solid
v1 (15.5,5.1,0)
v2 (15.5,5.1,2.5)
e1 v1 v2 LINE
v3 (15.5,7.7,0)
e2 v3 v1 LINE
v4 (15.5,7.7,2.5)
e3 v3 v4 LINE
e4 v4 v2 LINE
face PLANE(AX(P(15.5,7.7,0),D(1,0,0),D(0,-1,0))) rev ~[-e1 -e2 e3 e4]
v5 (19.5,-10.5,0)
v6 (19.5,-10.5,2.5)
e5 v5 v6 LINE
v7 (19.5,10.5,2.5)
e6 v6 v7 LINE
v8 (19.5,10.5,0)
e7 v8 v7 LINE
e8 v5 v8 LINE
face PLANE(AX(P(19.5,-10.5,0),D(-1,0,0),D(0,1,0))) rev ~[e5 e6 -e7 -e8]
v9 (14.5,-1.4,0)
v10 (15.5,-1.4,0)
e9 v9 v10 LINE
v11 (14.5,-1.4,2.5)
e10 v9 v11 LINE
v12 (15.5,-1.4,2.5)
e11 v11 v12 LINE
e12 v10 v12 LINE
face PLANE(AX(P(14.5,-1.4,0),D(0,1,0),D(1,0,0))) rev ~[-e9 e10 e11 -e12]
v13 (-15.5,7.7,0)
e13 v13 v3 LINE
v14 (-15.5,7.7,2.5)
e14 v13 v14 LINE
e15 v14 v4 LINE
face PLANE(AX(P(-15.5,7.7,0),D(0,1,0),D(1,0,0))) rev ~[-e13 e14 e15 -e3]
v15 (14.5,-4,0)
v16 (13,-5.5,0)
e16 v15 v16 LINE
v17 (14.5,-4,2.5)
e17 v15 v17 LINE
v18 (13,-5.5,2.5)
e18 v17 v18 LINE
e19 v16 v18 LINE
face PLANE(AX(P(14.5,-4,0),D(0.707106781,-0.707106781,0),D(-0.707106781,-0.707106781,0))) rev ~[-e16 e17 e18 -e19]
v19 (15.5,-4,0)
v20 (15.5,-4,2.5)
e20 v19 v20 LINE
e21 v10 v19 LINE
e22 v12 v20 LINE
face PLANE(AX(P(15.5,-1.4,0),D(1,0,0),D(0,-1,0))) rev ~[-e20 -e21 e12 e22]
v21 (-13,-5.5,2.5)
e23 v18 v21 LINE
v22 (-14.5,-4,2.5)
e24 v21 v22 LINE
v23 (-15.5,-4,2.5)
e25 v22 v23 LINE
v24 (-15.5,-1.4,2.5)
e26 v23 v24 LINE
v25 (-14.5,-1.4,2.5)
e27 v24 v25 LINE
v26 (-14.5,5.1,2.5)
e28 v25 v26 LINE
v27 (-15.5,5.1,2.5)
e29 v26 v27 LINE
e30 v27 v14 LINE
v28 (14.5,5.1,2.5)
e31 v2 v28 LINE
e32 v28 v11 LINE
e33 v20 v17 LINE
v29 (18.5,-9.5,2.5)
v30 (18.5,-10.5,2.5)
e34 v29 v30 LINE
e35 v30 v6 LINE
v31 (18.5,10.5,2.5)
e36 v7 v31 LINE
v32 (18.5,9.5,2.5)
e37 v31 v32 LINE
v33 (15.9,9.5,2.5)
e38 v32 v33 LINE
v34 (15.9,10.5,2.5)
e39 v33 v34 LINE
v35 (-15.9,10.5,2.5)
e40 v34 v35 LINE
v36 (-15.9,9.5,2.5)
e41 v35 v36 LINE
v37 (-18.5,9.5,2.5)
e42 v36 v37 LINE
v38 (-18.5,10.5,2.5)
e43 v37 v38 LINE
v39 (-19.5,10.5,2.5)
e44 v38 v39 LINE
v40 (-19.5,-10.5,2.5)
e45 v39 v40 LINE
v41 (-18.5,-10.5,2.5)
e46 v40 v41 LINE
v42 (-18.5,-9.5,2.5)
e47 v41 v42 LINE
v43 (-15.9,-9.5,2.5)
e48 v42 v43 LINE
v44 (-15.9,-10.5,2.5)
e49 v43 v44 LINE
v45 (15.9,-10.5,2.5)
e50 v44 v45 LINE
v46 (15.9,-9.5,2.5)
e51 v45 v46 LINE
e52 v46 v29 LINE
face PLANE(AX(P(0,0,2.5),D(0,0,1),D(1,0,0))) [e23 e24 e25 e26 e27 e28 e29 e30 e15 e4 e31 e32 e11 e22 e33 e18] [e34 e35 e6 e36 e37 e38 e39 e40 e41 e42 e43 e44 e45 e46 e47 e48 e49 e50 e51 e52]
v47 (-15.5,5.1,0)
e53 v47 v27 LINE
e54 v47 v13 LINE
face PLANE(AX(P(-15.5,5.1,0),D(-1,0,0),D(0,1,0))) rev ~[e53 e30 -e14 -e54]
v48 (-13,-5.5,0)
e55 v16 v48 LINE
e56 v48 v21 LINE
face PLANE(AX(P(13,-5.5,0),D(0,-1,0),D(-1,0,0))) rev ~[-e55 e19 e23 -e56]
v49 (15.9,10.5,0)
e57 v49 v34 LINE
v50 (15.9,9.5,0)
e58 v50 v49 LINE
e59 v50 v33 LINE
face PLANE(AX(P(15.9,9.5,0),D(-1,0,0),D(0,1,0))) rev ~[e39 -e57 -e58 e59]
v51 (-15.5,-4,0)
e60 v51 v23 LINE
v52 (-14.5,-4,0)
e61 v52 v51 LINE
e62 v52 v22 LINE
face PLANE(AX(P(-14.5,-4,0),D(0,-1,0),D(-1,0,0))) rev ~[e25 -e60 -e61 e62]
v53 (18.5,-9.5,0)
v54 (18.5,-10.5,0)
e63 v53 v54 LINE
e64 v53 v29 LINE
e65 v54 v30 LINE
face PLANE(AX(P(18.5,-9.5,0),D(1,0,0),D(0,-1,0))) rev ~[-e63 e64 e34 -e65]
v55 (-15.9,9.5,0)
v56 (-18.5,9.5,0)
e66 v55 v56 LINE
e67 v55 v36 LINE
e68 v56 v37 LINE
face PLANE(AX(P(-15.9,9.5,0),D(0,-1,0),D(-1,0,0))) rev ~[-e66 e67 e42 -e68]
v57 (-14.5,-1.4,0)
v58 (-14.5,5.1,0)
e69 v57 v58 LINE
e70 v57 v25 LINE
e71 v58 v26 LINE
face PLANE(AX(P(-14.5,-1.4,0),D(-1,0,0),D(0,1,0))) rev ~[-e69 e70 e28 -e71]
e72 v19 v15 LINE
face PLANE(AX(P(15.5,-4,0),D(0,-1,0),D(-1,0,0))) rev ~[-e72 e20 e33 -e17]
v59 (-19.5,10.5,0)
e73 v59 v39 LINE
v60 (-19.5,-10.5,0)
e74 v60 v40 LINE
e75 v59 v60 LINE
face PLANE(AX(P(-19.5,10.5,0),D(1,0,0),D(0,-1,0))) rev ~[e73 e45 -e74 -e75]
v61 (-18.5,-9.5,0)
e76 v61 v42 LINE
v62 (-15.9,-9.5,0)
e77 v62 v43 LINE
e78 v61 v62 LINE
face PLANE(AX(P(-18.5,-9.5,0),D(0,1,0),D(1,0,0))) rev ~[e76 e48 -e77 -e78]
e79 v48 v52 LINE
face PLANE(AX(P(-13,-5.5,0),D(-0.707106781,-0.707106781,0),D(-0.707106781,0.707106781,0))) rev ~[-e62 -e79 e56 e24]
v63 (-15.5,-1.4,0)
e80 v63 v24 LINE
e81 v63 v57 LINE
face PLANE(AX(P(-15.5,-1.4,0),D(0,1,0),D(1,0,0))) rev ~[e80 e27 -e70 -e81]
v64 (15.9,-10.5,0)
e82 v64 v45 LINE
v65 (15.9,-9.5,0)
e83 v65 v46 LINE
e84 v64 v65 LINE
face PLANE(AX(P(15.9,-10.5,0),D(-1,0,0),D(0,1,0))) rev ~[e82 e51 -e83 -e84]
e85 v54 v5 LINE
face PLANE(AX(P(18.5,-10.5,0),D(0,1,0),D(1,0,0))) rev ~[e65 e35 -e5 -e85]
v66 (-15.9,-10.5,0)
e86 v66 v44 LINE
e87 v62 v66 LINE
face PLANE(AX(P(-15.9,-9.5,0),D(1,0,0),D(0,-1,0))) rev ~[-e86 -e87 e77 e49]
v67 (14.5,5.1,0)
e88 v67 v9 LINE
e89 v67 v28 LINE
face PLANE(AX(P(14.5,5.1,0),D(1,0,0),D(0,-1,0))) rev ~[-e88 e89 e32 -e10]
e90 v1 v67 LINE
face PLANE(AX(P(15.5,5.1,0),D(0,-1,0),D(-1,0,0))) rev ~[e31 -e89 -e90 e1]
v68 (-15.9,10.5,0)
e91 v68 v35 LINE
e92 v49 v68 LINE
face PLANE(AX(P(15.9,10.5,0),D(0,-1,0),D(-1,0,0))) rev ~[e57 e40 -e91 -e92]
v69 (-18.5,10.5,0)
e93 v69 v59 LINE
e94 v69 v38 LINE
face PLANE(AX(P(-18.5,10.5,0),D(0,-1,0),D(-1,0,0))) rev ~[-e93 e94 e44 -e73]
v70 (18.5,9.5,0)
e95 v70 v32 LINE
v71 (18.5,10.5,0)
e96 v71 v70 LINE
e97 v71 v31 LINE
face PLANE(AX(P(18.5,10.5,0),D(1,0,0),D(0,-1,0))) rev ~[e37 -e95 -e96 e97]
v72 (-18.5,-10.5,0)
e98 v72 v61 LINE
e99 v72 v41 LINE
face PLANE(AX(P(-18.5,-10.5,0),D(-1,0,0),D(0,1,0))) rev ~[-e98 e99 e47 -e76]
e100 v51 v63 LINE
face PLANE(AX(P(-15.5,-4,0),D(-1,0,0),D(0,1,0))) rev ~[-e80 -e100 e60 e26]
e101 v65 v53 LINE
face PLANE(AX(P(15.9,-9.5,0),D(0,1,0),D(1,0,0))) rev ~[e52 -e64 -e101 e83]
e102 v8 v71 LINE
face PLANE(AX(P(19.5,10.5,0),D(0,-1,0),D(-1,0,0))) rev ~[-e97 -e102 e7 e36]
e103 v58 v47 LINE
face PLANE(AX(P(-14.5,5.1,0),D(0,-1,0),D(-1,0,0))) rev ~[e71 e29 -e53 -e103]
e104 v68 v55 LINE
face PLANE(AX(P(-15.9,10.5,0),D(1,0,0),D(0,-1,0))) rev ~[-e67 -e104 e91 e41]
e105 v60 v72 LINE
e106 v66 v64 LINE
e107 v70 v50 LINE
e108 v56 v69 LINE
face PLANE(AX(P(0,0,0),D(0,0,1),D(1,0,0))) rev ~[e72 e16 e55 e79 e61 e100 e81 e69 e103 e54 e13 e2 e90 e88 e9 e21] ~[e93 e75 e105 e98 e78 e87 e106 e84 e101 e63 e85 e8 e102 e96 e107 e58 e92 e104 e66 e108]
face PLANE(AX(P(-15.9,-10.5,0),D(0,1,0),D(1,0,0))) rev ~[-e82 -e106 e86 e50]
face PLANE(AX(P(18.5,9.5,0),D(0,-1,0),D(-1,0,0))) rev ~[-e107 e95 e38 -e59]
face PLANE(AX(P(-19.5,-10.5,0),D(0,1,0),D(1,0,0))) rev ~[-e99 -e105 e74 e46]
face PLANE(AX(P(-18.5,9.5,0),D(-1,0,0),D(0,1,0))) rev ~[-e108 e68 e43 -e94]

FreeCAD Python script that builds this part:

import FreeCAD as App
import Part
import Sketcher
from FreeCAD import Vector
Q = App.Units.Quantity

doc = App.newDocument("Part")
body = doc.addObject("PartDesign::Body", "Body")

# Sketch on XY plane
sketch1 = body.newObject("Sketcher::SketchObject", "Sketch")
sketch1.AttachmentSupport = (doc.getObject("XY_Plane"), [""])
sketch1.MapMode = "FlatFace"
sketch1.addGeometry([
    Part.LineSegment(Vector(18.5, -10.5, 0), Vector(19.5, -10.5, 0)),  # 0
    Part.LineSegment(Vector(19.5, -10.5, 0), Vector(19.5, 10.5, 0)),  # 1
    Part.LineSegment(Vector(19.5, 10.5, 0), Vector(18.5, 10.5, 0)),  # 2
    Part.LineSegment(Vector(18.5, 10.5, 0), Vector(18.5, 9.5, 0)),  # 3
    Part.LineSegment(Vector(18.5, 9.5, 0), Vector(15.9, 9.5, 0)),  # 4
    Part.LineSegment(Vector(15.9, 9.5, 0), Vector(15.9, 10.5, 0)),  # 5
    Part.LineSegment(Vector(15.9, 10.5, 0), Vector(-15.9, 10.5, 0)),  # 6
    Part.LineSegment(Vector(-15.9, 10.5, 0), Vector(-15.9, 9.5, 0)),  # 7
    Part.LineSegment(Vector(-15.9, 9.5, 0), Vector(-18.5, 9.5, 0)),  # 8
    Part.LineSegment(Vector(-18.5, 9.5, 0), Vector(-18.5, 10.5, 0)),  # 9
    Part.LineSegment(Vector(-18.5, 10.5, 0), Vector(-19.5, 10.5, 0)),  # 10
    Part.LineSegment(Vector(-19.5, 10.5, 0), Vector(-19.5, -10.5, 0)),  # 11
    Part.LineSegment(Vector(-19.5, -10.5, 0), Vector(-18.5, -10.5, 0)),  # 12
    Part.LineSegment(Vector(-18.5, -10.5, 0), Vector(-18.5, -9.5, 0)),  # 13
    Part.LineSegment(Vector(-18.5, -9.5, 0), Vector(-15.9, -9.5, 0)),  # 14
    Part.LineSegment(Vector(-15.9, -9.5, 0), Vector(-15.9, -10.5, 0)),  # 15
    Part.LineSegment(Vector(-15.9, -10.5, 0), Vector(15.9, -10.5, 0)),  # 16
    Part.LineSegment(Vector(15.9, -10.5, 0), Vector(15.9, -9.5, 0)),  # 17
    Part.LineSegment(Vector(15.9, -9.5, 0), Vector(18.5, -9.5, 0)),  # 18
    Part.LineSegment(Vector(18.5, -9.5, 0), Vector(18.5, -10.5, 0)),  # 19
    Part.LineSegment(Vector(-15.5, -1.4, 0), Vector(-14.5, -1.4, 0)),  # 20
    Part.LineSegment(Vector(-14.5, -1.4, 0), Vector(-14.5, 5.1, 0)),  # 21
    Part.LineSegment(Vector(-14.5, 5.1, 0), Vector(-15.5, 5.1, 0)),  # 22
    Part.LineSegment(Vector(-15.5, 5.1, 0), Vector(-15.5, 7.7, 0)),  # 23
    Part.LineSegment(Vector(-15.5, 7.7, 0), Vector(15.5, 7.7, 0)),  # 24
    Part.LineSegment(Vector(15.5, 7.7, 0), Vector(15.5, 5.1, 0)),  # 25
    Part.LineSegment(Vector(15.5, 5.1, 0), Vector(14.5, 5.1, 0)),  # 26
    Part.LineSegment(Vector(14.5, 5.1, 0), Vector(14.5, -1.4, 0)),  # 27
    Part.LineSegment(Vector(14.5, -1.4, 0), Vector(15.5, -1.4, 0)),  # 28
    Part.LineSegment(Vector(15.5, -1.4, 0), Vector(15.5, -4, 0)),  # 29
    Part.LineSegment(Vector(15.5, -4, 0), Vector(14.5, -4, 0)),  # 30
    Part.LineSegment(Vector(14.5, -4, 0), Vector(13, -5.5, 0)),  # 31
    Part.LineSegment(Vector(13, -5.5, 0), Vector(-13, -5.5, 0)),  # 32
    Part.LineSegment(Vector(-13, -5.5, 0), Vector(-14.5, -4, 0)),  # 33
    Part.LineSegment(Vector(-14.5, -4, 0), Vector(-15.5, -4, 0)),  # 34
    Part.LineSegment(Vector(-15.5, -4, 0), Vector(-15.5, -1.4, 0)),  # 35
], False)
sketch1.addConstraint([
    Sketcher.Constraint("Coincident", 0, 2, 1, 1),
    Sketcher.Constraint("Coincident", 1, 2, 2, 1),
    Sketcher.Constraint("Coincident", 2, 2, 3, 1),
    Sketcher.Constraint("Coincident", 3, 2, 4, 1),
    Sketcher.Constraint("Coincident", 4, 2, 5, 1),
    Sketcher.Constraint("Coincident", 5, 2, 6, 1),
    Sketcher.Constraint("Coincident", 6, 2, 7, 1),
    Sketcher.Constraint("Coincident", 7, 2, 8, 1),
    Sketcher.Constraint("Coincident", 8, 2, 9, 1),
    Sketcher.Constraint("Coincident", 9, 2, 10, 1),
    Sketcher.Constraint("Coincident", 10, 2, 11, 1),
    Sketcher.Constraint("Coincident", 11, 2, 12, 1),
    Sketcher.Constraint("Coincident", 12, 2, 13, 1),
    Sketcher.Constraint("Coincident", 13, 2, 14, 1),
    Sketcher.Constraint("Coincident", 14, 2, 15, 1),
    Sketcher.Constraint("Coincident", 15, 2, 16, 1),
    Sketcher.Constraint("Coincident", 16, 2, 17, 1),
    Sketcher.Constraint("Coincident", 17, 2, 18, 1),
    Sketcher.Constraint("Coincident", 18, 2, 19, 1),
    Sketcher.Constraint("Coincident", 19, 2, 0, 1),
    Sketcher.Constraint("Coincident", 20, 2, 21, 1),
    Sketcher.Constraint("Coincident", 21, 2, 22, 1),
    Sketcher.Constraint("Coincident", 22, 2, 23, 1),
    Sketcher.Constraint("Coincident", 23, 2, 24, 1),
    Sketcher.Constraint("Coincident", 24, 2, 25, 1),
    Sketcher.Constraint("Coincident", 25, 2, 26, 1),
    Sketcher.Constraint("Coincident", 26, 2, 27, 1),
    Sketcher.Constraint("Coincident", 27, 2, 28, 1),
    Sketcher.Constraint("Coincident", 28, 2, 29, 1),
    Sketcher.Constraint("Coincident", 29, 2, 30, 1),
    Sketcher.Constraint("Coincident", 30, 2, 31, 1),
    Sketcher.Constraint("Coincident", 31, 2, 32, 1),
    Sketcher.Constraint("Coincident", 32, 2, 33, 1),
    Sketcher.Constraint("Coincident", 33, 2, 34, 1),
    Sketcher.Constraint("Coincident", 34, 2, 35, 1),
    Sketcher.Constraint("Coincident", 35, 2, 20, 1),
    Sketcher.Constraint("Horizontal", 0),
    Sketcher.Constraint("Vertical", 1),
    Sketcher.Constraint("Horizontal", 2),
    Sketcher.Constraint("Vertical", 3),
    Sketcher.Constraint("Horizontal", 4),
    Sketcher.Constraint("Vertical", 5),
    Sketcher.Constraint("Horizontal", 6),
    Sketcher.Constraint("Vertical", 7),
    Sketcher.Constraint("Horizontal", 8),
    Sketcher.Constraint("Vertical", 9),
    Sketcher.Constraint("Horizontal", 10),
    Sketcher.Constraint("Vertical", 11),
    Sketcher.Constraint("Horizontal", 12),
    Sketcher.Constraint("Vertical", 13),
    Sketcher.Constraint("Horizontal", 14),
    Sketcher.Constraint("Vertical", 15),
    Sketcher.Constraint("Horizontal", 16),
    Sketcher.Constraint("Vertical", 17),
    Sketcher.Constraint("Horizontal", 18),
    Sketcher.Constraint("Vertical", 19),
    Sketcher.Constraint("Horizontal", 20),
    Sketcher.Constraint("Vertical", 21),
    Sketcher.Constraint("Horizontal", 22),
    Sketcher.Constraint("Vertical", 23),
    Sketcher.Constraint("Horizontal", 24),
    Sketcher.Constraint("Vertical", 25),
    Sketcher.Constraint("Horizontal", 26),
    Sketcher.Constraint("Vertical", 27),
    Sketcher.Constraint("Horizontal", 28),
    Sketcher.Constraint("Vertical", 29),
    Sketcher.Constraint("Horizontal", 30),
    Sketcher.Constraint("Horizontal", 32),
    Sketcher.Constraint("Horizontal", 34),
    Sketcher.Constraint("Vertical", 35),
    Sketcher.Constraint("Symmetric", 0, 2, 10, 2, -1, 1),
    Sketcher.Constraint("Symmetric", 2, 2, 12, 2, -1, 1),
    Sketcher.Constraint("Symmetric", 4, 2, 14, 2, -1, 1),
    Sketcher.Constraint("Symmetric", 6, 2, 16, 2, -1, 1),
    Sketcher.Constraint("Symmetric", 8, 2, 18, 2, -1, 1),
    Sketcher.Constraint("Symmetric", 4, 2, 7, 2, -2),
    Sketcher.Constraint("Symmetric", 2, 2, 9, 2, -2),
    Sketcher.Constraint("Symmetric", 22, 2, 25, 2, -2),
    Sketcher.Constraint("Symmetric", 20, 2, 27, 2, -2),
    Sketcher.Constraint("Symmetric", 30, 2, 33, 2, -2),
    Sketcher.Constraint("Perpendicular", 31, 33),
    Sketcher.Constraint("Horizontal", 2, 2, 5, 2),
    Sketcher.Constraint("Vertical", 25, 2, 28, 2),
    Sketcher.Constraint("Vertical", 27, 2, 30, 2),
    Sketcher.Constraint("Vertical", 23, 2, 34, 2),
    Sketcher.Constraint("Equal", 12, 20),
    Sketcher.Constraint("Equal", 34, 3),
    Sketcher.Constraint("Equal", 18, 23),
    Sketcher.Constraint("Equal", 25, 29),
    Sketcher.Constraint("Equal", 31, 33),
    Sketcher.Constraint("DistanceX", 0, 1, 0, 2, Q("1 mm")),
    Sketcher.Constraint("DistanceX", 24, 1, 24, 2, Q("31 mm")),
    Sketcher.Constraint("DistanceX", 32, 2, 32, 1, Q("26 mm")),
    Sketcher.Constraint("DistanceY", 1, 1, 1, 2, Q("21 mm")),
    Sketcher.Constraint("DistanceX", 4, 2, 4, 1, Q("2.6 mm")),
    Sketcher.Constraint("DistanceX", 6, 2, 6, 1, Q("31.8 mm")),
    Sketcher.Constraint("DistanceY", 21, 1, 21, 2, Q("6.5 mm")),
    Sketcher.Constraint("DistanceY", 29, 2, -1, 1, Q("4 mm")),
])
pad1 = body.newObject("PartDesign::Pad", "Pad")
pad1.Profile = sketch1
pad1.Length = 2.5

doc.recompute()
